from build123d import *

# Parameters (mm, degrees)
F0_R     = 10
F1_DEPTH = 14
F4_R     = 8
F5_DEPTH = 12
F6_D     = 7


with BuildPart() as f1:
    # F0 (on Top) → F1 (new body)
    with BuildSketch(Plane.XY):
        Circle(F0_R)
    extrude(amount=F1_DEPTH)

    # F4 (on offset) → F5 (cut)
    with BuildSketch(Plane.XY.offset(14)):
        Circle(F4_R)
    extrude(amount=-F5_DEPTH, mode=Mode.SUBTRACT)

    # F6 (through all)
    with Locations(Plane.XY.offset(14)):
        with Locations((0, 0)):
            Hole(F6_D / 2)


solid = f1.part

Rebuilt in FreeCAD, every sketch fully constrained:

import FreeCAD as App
import Part
import Sketcher
Q = App.Units.Quantity

doc = App.newDocument("Part")
body = doc.addObject("PartDesign::Body", "Body")

sketch1 = doc.addObject("Sketcher::SketchObject", "Sketch")
body.addObject(sketch1)
sketch1.AttachmentSupport = (doc.XY_Plane, [""])
sketch1.MapMode = "FlatFace"
sketch1.addGeometry(Part.Circle(App.Vector(0, 0, 0), App.Vector(0, 0, 1), 10), False)
sketch1.addConstraint([
    Sketcher.Constraint("Coincident", 0, 3, -1, 1),
    Sketcher.Constraint("Diameter", 0, Q("20 mm")),
])
pad1 = doc.addObject("PartDesign::Pad", "Pad")
body.addObject(pad1)
pad1.Profile = sketch1
pad1.Length = 14

sketch2 = doc.addObject("Sketcher::SketchObject", "Sketch001")
body.addObject(sketch2)
sketch2.AttachmentSupport = (doc.XY_Plane, [""])
sketch2.MapMode = "FlatFace"
sketch2.AttachmentOffset = App.Placement(App.Vector(0, 0, 14), App.Rotation())
sketch2.addGeometry(Part.Circle(App.Vector(0, 0, 0), App.Vector(0, 0, 1), 8), False)
sketch2.addConstraint([
    Sketcher.Constraint("Coincident", 0, 3, -1, 1),
    Sketcher.Constraint("Diameter", 0, Q("16 mm")),
])
pocket1 = doc.addObject("PartDesign::Pocket", "Pocket")
body.addObject(pocket1)
pocket1.Profile = sketch2
pocket1.Length = 12

sketch3 = doc.addObject("Sketcher::SketchObject", "Sketch002")
body.addObject(sketch3)
sketch3.AttachmentSupport = (doc.XY_Plane, [""])
sketch3.MapMode = "FlatFace"
sketch3.AttachmentOffset = App.Placement(App.Vector(0, 0, 14), App.Rotation())
sketch3.addGeometry(Part.Circle(App.Vector(0, 0, 0), App.Vector(0, 0, 1), 3.5), False)
sketch3.addConstraint([
    Sketcher.Constraint("Coincident", 0, 3, -1, 1),
    Sketcher.Constraint("Diameter", 0, Q("7 mm")),
])
doc.recompute()
hole = doc.addObject("PartDesign::Hole", "Hole")
body.addObject(hole)
hole.Profile = sketch3
hole.ThreadType = "None"
hole.Diameter = 7
hole.DepthType = "ThroughAll"

doc.recompute()
